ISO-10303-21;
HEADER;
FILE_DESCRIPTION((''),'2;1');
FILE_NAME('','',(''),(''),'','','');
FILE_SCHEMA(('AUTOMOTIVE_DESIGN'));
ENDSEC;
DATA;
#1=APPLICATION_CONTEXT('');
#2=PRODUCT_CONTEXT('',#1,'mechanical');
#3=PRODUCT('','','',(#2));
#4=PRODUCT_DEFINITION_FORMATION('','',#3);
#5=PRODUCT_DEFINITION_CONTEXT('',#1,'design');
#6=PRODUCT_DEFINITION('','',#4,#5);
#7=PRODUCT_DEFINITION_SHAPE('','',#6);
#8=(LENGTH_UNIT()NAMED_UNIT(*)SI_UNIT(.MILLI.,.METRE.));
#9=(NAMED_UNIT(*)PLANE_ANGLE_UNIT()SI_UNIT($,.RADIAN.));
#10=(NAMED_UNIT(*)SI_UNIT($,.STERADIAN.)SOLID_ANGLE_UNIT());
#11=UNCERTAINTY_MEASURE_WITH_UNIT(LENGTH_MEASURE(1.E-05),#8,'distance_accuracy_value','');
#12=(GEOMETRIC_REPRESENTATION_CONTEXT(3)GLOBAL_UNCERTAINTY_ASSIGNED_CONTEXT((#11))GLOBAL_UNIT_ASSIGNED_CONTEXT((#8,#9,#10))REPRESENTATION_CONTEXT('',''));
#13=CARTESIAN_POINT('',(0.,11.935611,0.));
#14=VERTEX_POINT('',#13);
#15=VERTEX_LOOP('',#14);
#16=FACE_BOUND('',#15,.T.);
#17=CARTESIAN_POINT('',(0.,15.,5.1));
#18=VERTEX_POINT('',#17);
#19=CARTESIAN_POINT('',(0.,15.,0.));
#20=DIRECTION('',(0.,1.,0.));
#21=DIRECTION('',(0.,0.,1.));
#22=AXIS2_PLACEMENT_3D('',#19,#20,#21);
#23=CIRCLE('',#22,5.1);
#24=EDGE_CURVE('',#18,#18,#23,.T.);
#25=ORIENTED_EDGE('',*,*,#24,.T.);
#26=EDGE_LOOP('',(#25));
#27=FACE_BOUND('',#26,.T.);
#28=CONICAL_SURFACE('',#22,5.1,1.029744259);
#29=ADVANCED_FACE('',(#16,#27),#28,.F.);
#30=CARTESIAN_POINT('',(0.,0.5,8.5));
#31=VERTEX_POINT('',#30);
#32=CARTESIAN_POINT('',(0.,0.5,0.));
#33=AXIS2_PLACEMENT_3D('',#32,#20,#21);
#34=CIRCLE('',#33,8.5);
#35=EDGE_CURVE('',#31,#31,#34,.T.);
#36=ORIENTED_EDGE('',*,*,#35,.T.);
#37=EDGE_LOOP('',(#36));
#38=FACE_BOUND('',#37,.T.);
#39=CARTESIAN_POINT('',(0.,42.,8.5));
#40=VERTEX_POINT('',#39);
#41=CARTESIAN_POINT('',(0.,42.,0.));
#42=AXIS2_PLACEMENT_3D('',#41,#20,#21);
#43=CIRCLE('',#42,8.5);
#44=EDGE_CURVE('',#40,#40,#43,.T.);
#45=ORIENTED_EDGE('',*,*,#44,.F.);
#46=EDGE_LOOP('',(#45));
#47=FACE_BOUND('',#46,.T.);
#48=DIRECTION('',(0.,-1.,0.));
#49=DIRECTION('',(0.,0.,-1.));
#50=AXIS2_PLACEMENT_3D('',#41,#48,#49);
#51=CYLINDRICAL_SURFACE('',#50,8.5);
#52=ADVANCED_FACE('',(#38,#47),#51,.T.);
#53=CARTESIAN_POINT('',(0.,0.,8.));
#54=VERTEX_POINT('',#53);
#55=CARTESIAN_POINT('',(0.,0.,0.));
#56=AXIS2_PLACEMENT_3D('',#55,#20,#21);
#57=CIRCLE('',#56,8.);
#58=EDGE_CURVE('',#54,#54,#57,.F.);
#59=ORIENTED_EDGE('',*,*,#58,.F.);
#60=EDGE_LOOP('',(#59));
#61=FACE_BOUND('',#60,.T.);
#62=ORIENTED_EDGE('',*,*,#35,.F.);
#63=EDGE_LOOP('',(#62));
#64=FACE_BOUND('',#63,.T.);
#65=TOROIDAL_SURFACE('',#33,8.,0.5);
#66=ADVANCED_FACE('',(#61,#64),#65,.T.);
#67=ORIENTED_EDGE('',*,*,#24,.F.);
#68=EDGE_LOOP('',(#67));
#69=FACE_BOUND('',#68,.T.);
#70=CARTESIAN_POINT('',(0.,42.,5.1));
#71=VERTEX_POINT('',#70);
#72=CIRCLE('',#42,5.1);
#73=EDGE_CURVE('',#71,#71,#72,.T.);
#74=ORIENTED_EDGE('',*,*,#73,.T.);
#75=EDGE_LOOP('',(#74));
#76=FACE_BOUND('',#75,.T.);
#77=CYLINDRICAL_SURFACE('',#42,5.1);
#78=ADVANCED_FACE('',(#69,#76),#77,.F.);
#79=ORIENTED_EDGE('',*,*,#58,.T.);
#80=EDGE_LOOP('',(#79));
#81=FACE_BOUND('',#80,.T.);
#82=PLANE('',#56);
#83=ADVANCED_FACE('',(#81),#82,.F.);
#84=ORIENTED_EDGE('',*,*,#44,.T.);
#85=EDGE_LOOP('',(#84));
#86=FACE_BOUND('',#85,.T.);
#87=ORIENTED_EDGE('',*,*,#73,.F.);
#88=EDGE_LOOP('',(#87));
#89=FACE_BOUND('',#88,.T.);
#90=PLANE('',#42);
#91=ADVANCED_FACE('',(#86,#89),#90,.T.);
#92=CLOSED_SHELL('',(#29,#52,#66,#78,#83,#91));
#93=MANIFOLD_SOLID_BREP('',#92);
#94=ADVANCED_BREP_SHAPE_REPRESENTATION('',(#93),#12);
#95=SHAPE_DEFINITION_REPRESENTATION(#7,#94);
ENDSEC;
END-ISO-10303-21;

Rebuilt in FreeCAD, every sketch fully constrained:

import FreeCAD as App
import Part
import Sketcher
Q = App.Units.Quantity


def edges_at(feature, points):
    """Names of the edges that pass closest to the given points."""
    edges = feature.Shape.Edges
    near = lambda p: min(range(len(edges)), key=lambda i: edges[i].distToShape(Part.Vertex(*p))[0])
    return sorted({f"Edge{near(p) + 1}" for p in points})


def add_polygon(sketch, points):
    """Adds a closed chain of lines whose ends are joined by coincident constraints."""
    first, n = sketch.GeometryCount, len(points)
    for a, b in zip(points, points[1:] + points[:1]):
        sketch.addGeometry(Part.LineSegment(App.Vector(*a, 0), App.Vector(*b, 0)), False)
    for i in range(n):
        sketch.addConstraint(Sketcher.Constraint("Coincident", first + i, 2, first + (i + 1) % n, 1))

doc = App.newDocument("Part")
body = doc.addObject("PartDesign::Body", "Body")

sketch1 = body.newObject("Sketcher::SketchObject", "Sketch")
sketch1.AttachmentSupport = (doc.getObject("XZ_Plane"), [""])
sketch1.MapMode = "FlatFace"
sketch1.addGeometry(Part.Circle(App.Vector(0, 0, 0), App.Vector(0, 0, 1), 8.5), False)
sketch1.addConstraint(Sketcher.Constraint("Coincident", 0, 3, -1, 1))
sketch1.addConstraint(Sketcher.Constraint("Diameter", 0, 17.0))
pad1 = body.newObject("PartDesign::Pad", "Pad")
pad1.Profile = sketch1
pad1.Length = 42
pad1.Reversed = True

sketch2 = body.newObject("Sketcher::SketchObject", "Sketch001")
sketch2.AttachmentSupport = (doc.getObject("YZ_Plane"), [""])
sketch2.MapMode = "FlatFace"
add_polygon(sketch2, [(11.935611, 0), (42, 0), (42, 5.1), (15, 5.1)])
sketch2.addConstraint(Sketcher.Constraint("Horizontal", 0))
sketch2.addConstraint(Sketcher.Constraint("Vertical", 1))
sketch2.addConstraint(Sketcher.Constraint("Horizontal", 2))
sketch2.addConstraint(Sketcher.Constraint("PointOnObject", 0, 2, -1))
sketch2.addConstraint(Sketcher.Constraint("DistanceX", 2, 2, 2, 1, 27.0))
sketch2.addConstraint(Sketcher.Constraint("Angle", 3, Q("-121 deg")))
sketch2.addConstraint(Sketcher.Constraint("DistanceY", 1, 1, 1, 2, 5.1))
sketch2.addConstraint(Sketcher.Constraint("DistanceX", -1, 1, 0, 2, 42.0))
groove = body.newObject("PartDesign::Groove", "Groove")
groove.Profile = sketch2
groove.ReferenceAxis = (sketch2, ["H_Axis"])
groove.Angle = 360
doc.recompute()

fillet = body.newObject("PartDesign::Fillet", "Fillet")
fillet.Base = (groove, edges_at(groove, [(-8.5, 0, 0)]))
fillet.Radius = 0.5

doc.recompute()
